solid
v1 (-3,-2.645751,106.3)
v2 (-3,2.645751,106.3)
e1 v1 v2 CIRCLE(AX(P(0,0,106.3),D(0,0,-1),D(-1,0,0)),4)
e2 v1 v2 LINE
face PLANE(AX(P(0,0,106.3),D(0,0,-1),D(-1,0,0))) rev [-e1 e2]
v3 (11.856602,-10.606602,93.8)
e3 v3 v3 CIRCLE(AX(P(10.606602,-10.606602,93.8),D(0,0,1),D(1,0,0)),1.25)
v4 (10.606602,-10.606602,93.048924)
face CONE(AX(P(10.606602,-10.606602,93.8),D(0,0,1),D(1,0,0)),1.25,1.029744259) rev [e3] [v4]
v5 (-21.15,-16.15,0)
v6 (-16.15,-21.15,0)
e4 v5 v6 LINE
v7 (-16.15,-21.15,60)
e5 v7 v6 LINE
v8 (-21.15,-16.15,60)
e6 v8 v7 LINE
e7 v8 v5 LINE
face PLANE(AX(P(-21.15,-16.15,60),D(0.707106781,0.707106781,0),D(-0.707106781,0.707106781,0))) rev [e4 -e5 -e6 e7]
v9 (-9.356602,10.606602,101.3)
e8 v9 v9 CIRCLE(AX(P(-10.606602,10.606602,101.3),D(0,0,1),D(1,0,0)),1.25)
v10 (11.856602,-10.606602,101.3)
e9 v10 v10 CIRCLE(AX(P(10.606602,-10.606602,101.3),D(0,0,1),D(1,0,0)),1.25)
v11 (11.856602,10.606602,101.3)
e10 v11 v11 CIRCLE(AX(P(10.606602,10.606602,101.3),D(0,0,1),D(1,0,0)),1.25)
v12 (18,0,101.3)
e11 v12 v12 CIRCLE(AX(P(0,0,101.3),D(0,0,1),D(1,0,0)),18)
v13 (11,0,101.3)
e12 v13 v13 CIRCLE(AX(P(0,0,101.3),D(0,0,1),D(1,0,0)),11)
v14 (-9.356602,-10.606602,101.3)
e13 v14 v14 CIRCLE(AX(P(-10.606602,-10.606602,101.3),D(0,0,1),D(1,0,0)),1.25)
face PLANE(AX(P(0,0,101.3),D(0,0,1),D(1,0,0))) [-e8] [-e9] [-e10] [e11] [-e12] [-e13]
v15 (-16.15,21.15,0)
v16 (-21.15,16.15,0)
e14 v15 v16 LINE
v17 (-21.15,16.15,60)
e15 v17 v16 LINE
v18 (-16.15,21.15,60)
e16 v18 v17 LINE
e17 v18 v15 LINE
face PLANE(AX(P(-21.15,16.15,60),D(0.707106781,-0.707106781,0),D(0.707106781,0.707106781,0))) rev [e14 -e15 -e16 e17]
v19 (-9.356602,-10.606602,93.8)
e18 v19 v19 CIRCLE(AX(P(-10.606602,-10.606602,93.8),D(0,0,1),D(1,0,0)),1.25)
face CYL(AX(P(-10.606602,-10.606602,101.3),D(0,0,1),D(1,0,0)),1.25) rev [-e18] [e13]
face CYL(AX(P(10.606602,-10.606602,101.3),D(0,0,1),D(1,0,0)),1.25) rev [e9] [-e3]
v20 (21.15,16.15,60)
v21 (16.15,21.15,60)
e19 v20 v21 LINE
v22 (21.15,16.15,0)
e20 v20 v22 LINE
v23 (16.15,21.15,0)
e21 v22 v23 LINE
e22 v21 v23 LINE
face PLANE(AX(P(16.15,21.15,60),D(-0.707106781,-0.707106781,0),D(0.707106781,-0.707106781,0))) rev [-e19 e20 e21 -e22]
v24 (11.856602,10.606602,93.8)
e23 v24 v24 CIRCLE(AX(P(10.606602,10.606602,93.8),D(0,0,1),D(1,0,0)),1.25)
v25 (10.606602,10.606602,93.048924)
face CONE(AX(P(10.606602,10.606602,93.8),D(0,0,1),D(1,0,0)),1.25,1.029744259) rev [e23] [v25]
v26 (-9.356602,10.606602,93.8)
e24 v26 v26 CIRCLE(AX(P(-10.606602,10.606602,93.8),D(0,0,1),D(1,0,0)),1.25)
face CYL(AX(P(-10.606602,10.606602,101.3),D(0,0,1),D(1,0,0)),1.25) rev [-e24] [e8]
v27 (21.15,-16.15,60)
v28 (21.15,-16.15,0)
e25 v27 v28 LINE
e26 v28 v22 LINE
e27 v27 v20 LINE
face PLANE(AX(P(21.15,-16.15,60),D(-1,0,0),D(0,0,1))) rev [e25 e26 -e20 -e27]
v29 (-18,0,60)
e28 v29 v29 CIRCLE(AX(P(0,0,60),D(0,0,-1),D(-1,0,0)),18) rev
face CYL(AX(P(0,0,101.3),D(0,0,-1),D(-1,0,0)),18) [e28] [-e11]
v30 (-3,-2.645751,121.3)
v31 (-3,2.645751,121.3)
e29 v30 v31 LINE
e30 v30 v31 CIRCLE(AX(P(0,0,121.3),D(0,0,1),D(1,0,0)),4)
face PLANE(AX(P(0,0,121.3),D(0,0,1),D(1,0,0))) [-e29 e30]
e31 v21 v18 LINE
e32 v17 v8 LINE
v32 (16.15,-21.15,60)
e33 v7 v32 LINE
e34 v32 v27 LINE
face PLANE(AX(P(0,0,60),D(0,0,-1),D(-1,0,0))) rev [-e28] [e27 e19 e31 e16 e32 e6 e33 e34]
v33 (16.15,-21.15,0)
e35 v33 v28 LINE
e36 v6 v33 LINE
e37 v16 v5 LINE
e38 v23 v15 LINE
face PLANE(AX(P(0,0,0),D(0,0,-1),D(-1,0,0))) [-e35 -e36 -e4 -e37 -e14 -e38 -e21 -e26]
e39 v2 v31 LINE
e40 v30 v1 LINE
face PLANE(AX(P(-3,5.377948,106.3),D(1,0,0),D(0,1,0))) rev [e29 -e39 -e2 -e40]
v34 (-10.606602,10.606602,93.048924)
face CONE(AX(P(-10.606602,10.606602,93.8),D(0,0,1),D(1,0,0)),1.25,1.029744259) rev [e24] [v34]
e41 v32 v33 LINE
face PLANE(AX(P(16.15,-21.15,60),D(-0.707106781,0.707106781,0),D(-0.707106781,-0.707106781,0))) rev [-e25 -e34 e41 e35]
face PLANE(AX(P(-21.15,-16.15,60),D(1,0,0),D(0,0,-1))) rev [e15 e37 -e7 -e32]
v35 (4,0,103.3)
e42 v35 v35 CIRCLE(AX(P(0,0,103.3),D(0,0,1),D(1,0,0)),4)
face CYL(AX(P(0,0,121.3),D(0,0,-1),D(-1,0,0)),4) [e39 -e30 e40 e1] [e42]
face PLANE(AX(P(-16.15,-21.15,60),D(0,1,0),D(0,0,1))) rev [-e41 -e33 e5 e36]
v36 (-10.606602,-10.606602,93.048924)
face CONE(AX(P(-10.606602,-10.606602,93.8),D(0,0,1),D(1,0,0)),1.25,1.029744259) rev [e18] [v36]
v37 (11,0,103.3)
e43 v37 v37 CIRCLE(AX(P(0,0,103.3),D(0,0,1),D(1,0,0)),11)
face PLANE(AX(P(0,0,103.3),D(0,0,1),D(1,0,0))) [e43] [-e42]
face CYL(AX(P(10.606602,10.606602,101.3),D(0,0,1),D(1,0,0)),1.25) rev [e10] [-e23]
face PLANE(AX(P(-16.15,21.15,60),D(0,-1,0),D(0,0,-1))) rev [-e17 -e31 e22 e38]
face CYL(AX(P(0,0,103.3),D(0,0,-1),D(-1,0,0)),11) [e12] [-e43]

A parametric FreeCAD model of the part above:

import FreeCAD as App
import Part
import Sketcher
Q = App.Units.Quantity

doc = App.newDocument("Part")
body = doc.addObject("PartDesign::Body", "Body")

sketch1 = body.newObject("Sketcher::SketchObject", "Sketch")
sketch1.AttachmentSupport = (doc.getObject("XY_Plane"), [""])
sketch1.MapMode = "FlatFace"
sketch1.addGeometry([
    Part.LineSegment(App.Vector(-16, 21, 0), App.Vector(-21, 16, 0)),
    Part.LineSegment(App.Vector(-21, 16, 0), App.Vector(-21, -16, 0)),
    Part.LineSegment(App.Vector(-21, -16, 0), App.Vector(-16, -21, 0)),
    Part.LineSegment(App.Vector(-16, -21, 0), App.Vector(16, -21, 0)),
    Part.LineSegment(App.Vector(16, -21, 0), App.Vector(21, -16, 0)),
    Part.LineSegment(App.Vector(21, -16, 0), App.Vector(21, 16, 0)),
    Part.LineSegment(App.Vector(21, 16, 0), App.Vector(16, 21, 0)),
    Part.LineSegment(App.Vector(16, 21, 0), App.Vector(-16, 21, 0)),
], False)
sketch1.addConstraint([
    Sketcher.Constraint("Coincident", 0, 2, 1, 1),
    Sketcher.Constraint("Coincident", 1, 2, 2, 1),
    Sketcher.Constraint("Coincident", 2, 2, 3, 1),
    Sketcher.Constraint("Coincident", 3, 2, 4, 1),
    Sketcher.Constraint("Coincident", 4, 2, 5, 1),
    Sketcher.Constraint("Coincident", 5, 2, 6, 1),
    Sketcher.Constraint("Coincident", 6, 2, 7, 1),
    Sketcher.Constraint("Coincident", 7, 2, 0, 1),
    Sketcher.Constraint("Vertical", 1),
    Sketcher.Constraint("Horizontal", 3),
    Sketcher.Constraint("Vertical", 5),
    Sketcher.Constraint("Horizontal", 7),
    Sketcher.Constraint("Symmetric", 0, 2, 4, 2, -1, 1),
    Sketcher.Constraint("Symmetric", 2, 2, 6, 2, -1, 1),
    Sketcher.Constraint("Perpendicular", 0, 2),
    Sketcher.Constraint("Perpendicular", 2, 4),
    Sketcher.Constraint("Perpendicular", 4, 6),
    Sketcher.Constraint("Horizontal", 1, 2, 4, 2),
    Sketcher.Constraint("Vertical", 3, 2, 6, 2),
    Sketcher.Constraint("Equal", 7, 1),
    Sketcher.Constraint("DistanceX", 3, 1, 3, 2, Q("32.3 mm")),
    Sketcher.Constraint("DistanceX", 1, 2, 2, 2, Q("5 mm")),
])
pad1 = body.newObject("PartDesign::Pad", "Pad")
pad1.Profile = sketch1
pad1.Length = 60

sketch2 = body.newObject("Sketcher::SketchObject", "Sketch001")
sketch2.AttachmentSupport = (doc.getObject("XY_Plane"), [""])
sketch2.MapMode = "FlatFace"
sketch2.AttachmentOffset = App.Placement(App.Vector(0, 0, 60), App.Rotation())
sketch2.addGeometry(Part.Circle(App.Vector(0, 0, 0), App.Vector(0, 0, 1), 18), False)
sketch2.addConstraint([
    Sketcher.Constraint("Coincident", 0, 3, -1, 1),
    Sketcher.Constraint("Diameter", 0, Q("36 mm")),
])
pad2 = body.newObject("PartDesign::Pad", "Pad001")
pad2.Profile = sketch2
pad2.Length = 41.3

sketch3 = body.newObject("Sketcher::SketchObject", "Sketch002")
sketch3.AttachmentSupport = (doc.getObject("XY_Plane"), [""])
sketch3.MapMode = "FlatFace"
sketch3.AttachmentOffset = App.Placement(App.Vector(0, 0, 101.3), App.Rotation())
sketch3.addGeometry(Part.Circle(App.Vector(0, 0, 0), App.Vector(0, 0, 1), 11), False)
sketch3.addConstraint([
    Sketcher.Constraint("Coincident", 0, 3, -1, 1),
    Sketcher.Constraint("Diameter", 0, Q("22 mm")),
])
pad3 = body.newObject("PartDesign::Pad", "Pad002")
pad3.Profile = sketch3
pad3.Length = 2

sketch4 = body.newObject("Sketcher::SketchObject", "Sketch003")
sketch4.AttachmentSupport = (doc.getObject("XY_Plane"), [""])
sketch4.MapMode = "FlatFace"
sketch4.AttachmentOffset = App.Placement(App.Vector(0, 0, 103.3), App.Rotation())
sketch4.addGeometry(Part.Circle(App.Vector(0, 0, 0), App.Vector(0, 0, 1), 4), False)
sketch4.addConstraint([
    Sketcher.Constraint("Coincident", 0, 3, -1, 1),
    Sketcher.Constraint("Diameter", 0, Q("8 mm")),
])
pad4 = body.newObject("PartDesign::Pad", "Pad003")
pad4.Profile = sketch4
pad4.Length = 18

sketch5 = body.newObject("Sketcher::SketchObject", "Sketch004")
sketch5.AttachmentSupport = (doc.getObject("XY_Plane"), [""])
sketch5.MapMode = "FlatFace"
sketch5.AttachmentOffset = App.Placement(App.Vector(0, 0, 121.3), App.Rotation())
sketch5.addGeometry([
    Part.LineSegment(App.Vector(-11, 5, 0), App.Vector(-11, -8, 0)),
    Part.LineSegment(App.Vector(-11, -8, 0), App.Vector(-3, -8, 0)),
    Part.LineSegment(App.Vector(-3, -8, 0), App.Vector(-3, 5, 0)),
    Part.LineSegment(App.Vector(-3, 5, 0), App.Vector(-11, 5, 0)),
], False)
sketch5.addConstraint([
    Sketcher.Constraint("Coincident", 0, 2, 1, 1),
    Sketcher.Constraint("Coincident", 1, 2, 2, 1),
    Sketcher.Constraint("Coincident", 2, 2, 3, 1),
    Sketcher.Constraint("Coincident", 3, 2, 0, 1),
    Sketcher.Constraint("Vertical", 0),
    Sketcher.Constraint("Horizontal", 1),
    Sketcher.Constraint("Vertical", 2),
    Sketcher.Constraint("Horizontal", 3),
    Sketcher.Constraint("DistanceX", 1, 2, -1, 1, Q("3 mm")),
    Sketcher.Constraint("DistanceY", 0, 2, 0, 1, Q("13.4508 mm")),
    Sketcher.Constraint("DistanceX", 1, 1, 1, 2, Q("8.094286 mm")),
    Sketcher.Constraint("DistanceY", 0, 2, -1, 1, Q("8.072851 mm")),
])
pocket1 = body.newObject("PartDesign::Pocket", "Pocket")
pocket1.Profile = sketch5
pocket1.Length = 15

sketch6 = body.newObject("Sketcher::SketchObject", "Sketch005")
sketch6.AttachmentSupport = (doc.getObject("XY_Plane"), [""])
sketch6.MapMode = "FlatFace"
sketch6.AttachmentOffset = App.Placement(App.Vector(0, 0, 101.3), App.Rotation())
sketch6.addGeometry([
    Part.Circle(App.Vector(-10.6, 10.6, 0), App.Vector(0, 0, 1), 1),
    Part.Circle(App.Vector(10.6, 10.6, 0), App.Vector(0, 0, 1), 1),
    Part.Circle(App.Vector(-10.6, -10.6, 0), App.Vector(0, 0, 1), 1),
    Part.Circle(App.Vector(10.6, -10.6, 0), App.Vector(0, 0, 1), 1),
], False)
sketch6.addConstraint([
    Sketcher.Constraint("Equal", 0, 1),
    Sketcher.Constraint("Equal", 1, 2),
    Sketcher.Constraint("Equal", 2, 3),
    Sketcher.Constraint("Symmetric", 1, 3, 2, 3, -1, 1),
    Sketcher.Constraint("Symmetric", 0, 3, 3, 3, -1, 1),
    Sketcher.Constraint("Symmetric", 0, 3, 1, 3, -2),
    Sketcher.Constraint("Diameter", 0, Q("2 mm")),
    Sketcher.Constraint("DistanceX", 0, 3, -1, 1, Q("10.606602 mm")),
    Sketcher.Constraint("DistanceY", -1, 1, 0, 3, Q("10.606602 mm")),
])
pocket2 = body.newObject("PartDesign::Pocket", "Pocket001")
pocket2.Profile = sketch6
pocket2.Length = 5

sketch7 = body.newObject("Sketcher::SketchObject", "Sketch006")
sketch7.AttachmentSupport = (doc.getObject("XY_Plane"), [""])
sketch7.MapMode = "FlatFace"
sketch7.AttachmentOffset = App.Placement(App.Vector(0, 0, 101.3), App.Rotation())
sketch7.addGeometry([
    Part.Circle(App.Vector(-10.6, 10.6, 0), App.Vector(0, 0, 1), 1.2),
    Part.Circle(App.Vector(10.6, 10.6, 0), App.Vector(0, 0, 1), 1.2),
    Part.Circle(App.Vector(-10.6, -10.6, 0), App.Vector(0, 0, 1), 1.2),
    Part.Circle(App.Vector(10.6, -10.6, 0), App.Vector(0, 0, 1), 1.2),
], False)
sketch7.addConstraint([
    Sketcher.Constraint("Equal", 0, 1),
    Sketcher.Constraint("Equal", 1, 2),
    Sketcher.Constraint("Equal", 2, 3),
    Sketcher.Constraint("Symmetric", 1, 3, 2, 3, -1, 1),
    Sketcher.Constraint("Symmetric", 0, 3, 3, 3, -1, 1),
    Sketcher.Constraint("Symmetric", 0, 3, 1, 3, -2),
    Sketcher.Constraint("Diameter", 0, Q("2.5 mm")),
    Sketcher.Constraint("DistanceX", 0, 3, -1, 1, Q("10.606602 mm")),
    Sketcher.Constraint("DistanceY", -1, 1, 0, 3, Q("10.606602 mm")),
])
doc.recompute()
hole = body.newObject("PartDesign::Hole", "Hole")
hole.Profile = sketch7
hole.ThreadType = "None"
hole.Diameter = 2.5
hole.DepthType = "Dimension"
hole.Depth = 7.5
hole.DrillPoint = "Angled"
hole.DrillPointAngle = 118

doc.recompute()
